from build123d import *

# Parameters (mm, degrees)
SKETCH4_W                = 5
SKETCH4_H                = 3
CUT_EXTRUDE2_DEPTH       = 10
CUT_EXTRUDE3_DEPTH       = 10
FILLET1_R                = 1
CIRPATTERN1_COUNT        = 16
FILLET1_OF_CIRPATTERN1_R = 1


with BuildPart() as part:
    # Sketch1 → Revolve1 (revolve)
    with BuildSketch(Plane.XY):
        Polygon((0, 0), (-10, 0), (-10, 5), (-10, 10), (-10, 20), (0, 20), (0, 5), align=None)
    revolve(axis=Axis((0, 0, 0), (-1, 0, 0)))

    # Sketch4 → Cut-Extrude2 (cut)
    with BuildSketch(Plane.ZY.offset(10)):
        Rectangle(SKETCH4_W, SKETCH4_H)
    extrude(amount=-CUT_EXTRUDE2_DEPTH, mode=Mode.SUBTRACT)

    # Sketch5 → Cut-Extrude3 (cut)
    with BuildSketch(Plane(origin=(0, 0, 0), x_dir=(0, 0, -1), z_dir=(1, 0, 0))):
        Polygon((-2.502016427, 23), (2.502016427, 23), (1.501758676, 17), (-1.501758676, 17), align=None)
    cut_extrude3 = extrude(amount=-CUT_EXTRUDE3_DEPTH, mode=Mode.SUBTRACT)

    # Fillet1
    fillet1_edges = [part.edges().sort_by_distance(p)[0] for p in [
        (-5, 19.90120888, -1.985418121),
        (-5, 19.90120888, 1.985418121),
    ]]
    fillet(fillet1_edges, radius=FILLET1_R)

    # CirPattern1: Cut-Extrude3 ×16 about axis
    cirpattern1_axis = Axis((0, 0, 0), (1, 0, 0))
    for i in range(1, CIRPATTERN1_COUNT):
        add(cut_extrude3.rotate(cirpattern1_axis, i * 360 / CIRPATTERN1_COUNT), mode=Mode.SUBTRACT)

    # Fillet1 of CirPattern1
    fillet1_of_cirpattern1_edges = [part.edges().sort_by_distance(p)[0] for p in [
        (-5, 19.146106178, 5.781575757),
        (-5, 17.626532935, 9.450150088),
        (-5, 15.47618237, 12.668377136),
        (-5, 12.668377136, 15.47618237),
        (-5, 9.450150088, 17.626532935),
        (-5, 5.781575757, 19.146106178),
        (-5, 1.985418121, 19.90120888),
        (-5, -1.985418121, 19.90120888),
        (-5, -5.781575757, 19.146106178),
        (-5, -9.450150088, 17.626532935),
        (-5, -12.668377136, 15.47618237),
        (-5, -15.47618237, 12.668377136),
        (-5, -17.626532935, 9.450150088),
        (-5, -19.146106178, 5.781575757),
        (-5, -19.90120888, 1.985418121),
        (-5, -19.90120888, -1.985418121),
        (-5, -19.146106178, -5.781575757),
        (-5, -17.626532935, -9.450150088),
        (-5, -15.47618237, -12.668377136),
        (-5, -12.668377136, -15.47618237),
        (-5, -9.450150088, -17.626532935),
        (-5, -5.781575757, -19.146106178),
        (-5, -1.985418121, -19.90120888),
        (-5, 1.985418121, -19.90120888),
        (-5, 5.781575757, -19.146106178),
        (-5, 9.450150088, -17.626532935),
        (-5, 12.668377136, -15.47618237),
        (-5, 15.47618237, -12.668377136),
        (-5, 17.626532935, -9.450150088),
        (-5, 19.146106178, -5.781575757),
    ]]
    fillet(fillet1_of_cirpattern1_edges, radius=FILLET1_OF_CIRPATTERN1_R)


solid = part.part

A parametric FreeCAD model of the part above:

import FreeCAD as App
import Part
import Sketcher
Q = App.Units.Quantity


def edges_at(feature, points):
    """Names of the edges that pass closest to the given points."""
    edges = feature.Shape.Edges
    near = lambda p: min(range(len(edges)), key=lambda i: edges[i].distToShape(Part.Vertex(*p))[0])
    return sorted({f"Edge{near(p) + 1}" for p in points})

doc = App.newDocument("Part")
body = doc.addObject("PartDesign::Body", "Body")

# Sketch on XY plane
sketch1 = body.newObject("Sketcher::SketchObject", "Sketch")
sketch1.AttachmentSupport = (doc.getObject("XY_Plane"), [""])
sketch1.MapMode = "FlatFace"
sketch1.addGeometry([
    Part.LineSegment(App.Vector(-10, 0, 0), App.Vector(0, 0, 0)),
    Part.LineSegment(App.Vector(0, 0, 0), App.Vector(0, 20, 0)),
    Part.LineSegment(App.Vector(0, 20, 0), App.Vector(-10, 20, 0)),
    Part.LineSegment(App.Vector(-10, 20, 0), App.Vector(-10, 0, 0)),
], False)
sketch1.addConstraint([
    Sketcher.Constraint("Coincident", 0, 2, 1, 1),
    Sketcher.Constraint("Coincident", 1, 2, 2, 1),
    Sketcher.Constraint("Coincident", 2, 2, 3, 1),
    Sketcher.Constraint("Coincident", 3, 2, 0, 1),
    Sketcher.Constraint("Horizontal", 0),
    Sketcher.Constraint("Vertical", 1),
    Sketcher.Constraint("Horizontal", 2),
    Sketcher.Constraint("Vertical", 3),
    Sketcher.Constraint("Coincident", 0, 2, -1, 1),
    Sketcher.Constraint("DistanceX", 0, 1, 0, 2, Q("10 mm")),
    Sketcher.Constraint("DistanceY", 1, 1, 1, 2, Q("20 mm")),
])
revolution = body.newObject("PartDesign::Revolution", "Revolution")
revolution.Profile = sketch1
revolution.ReferenceAxis = (sketch1, ["H_Axis"])
revolution.Angle = 360

# Sketch on YZ plane
sketch2 = body.newObject("Sketcher::SketchObject", "Sketch001")
sketch2.AttachmentSupport = (doc.getObject("YZ_Plane"), [""])
sketch2.MapMode = "FlatFace"
sketch2.AttachmentOffset = App.Placement(App.Vector(0, 0, -10), App.Rotation())
sketch2.addGeometry([
    Part.LineSegment(App.Vector(1.5, -2.5, 0), App.Vector(-1.5, -2.5, 0)),
    Part.LineSegment(App.Vector(-1.5, -2.5, 0), App.Vector(-1.5, 2.5, 0)),
    Part.LineSegment(App.Vector(-1.5, 2.5, 0), App.Vector(1.5, 2.5, 0)),
    Part.LineSegment(App.Vector(1.5, 2.5, 0), App.Vector(1.5, -2.5, 0)),
], False)
sketch2.addConstraint([
    Sketcher.Constraint("Coincident", 0, 2, 1, 1),
    Sketcher.Constraint("Coincident", 1, 2, 2, 1),
    Sketcher.Constraint("Coincident", 2, 2, 3, 1),
    Sketcher.Constraint("Coincident", 3, 2, 0, 1),
    Sketcher.Constraint("Horizontal", 0),
    Sketcher.Constraint("Vertical", 1),
    Sketcher.Constraint("Horizontal", 2),
    Sketcher.Constraint("Vertical", 3),
    Sketcher.Constraint("Symmetric", 0, 2, 2, 2, -1, 1),
    Sketcher.Constraint("DistanceX", 0, 2, 0, 1, Q("3 mm")),
    Sketcher.Constraint("DistanceY", 1, 1, 1, 2, Q("5 mm")),
])
pocket1 = body.newObject("PartDesign::Pocket", "Pocket")
pocket1.Profile = sketch2
pocket1.Length = 10
pocket1.Reversed = True

# Sketch on YZ plane
sketch3 = body.newObject("Sketcher::SketchObject", "Sketch002")
sketch3.AttachmentSupport = (doc.getObject("YZ_Plane"), [""])
sketch3.MapMode = "FlatFace"
sketch3.addGeometry([
    Part.LineSegment(App.Vector(23, -2.5, 0), App.Vector(23, 2.5, 0)),
    Part.LineSegment(App.Vector(23, 2.5, 0), App.Vector(17, 1.5, 0)),
    Part.LineSegment(App.Vector(17, 1.5, 0), App.Vector(17, -1.5, 0)),
    Part.LineSegment(App.Vector(17, -1.5, 0), App.Vector(23, -2.5, 0)),
], False)
sketch3.addConstraint([
    Sketcher.Constraint("Coincident", 0, 2, 1, 1),
    Sketcher.Constraint("Coincident", 1, 2, 2, 1),
    Sketcher.Constraint("Coincident", 2, 2, 3, 1),
    Sketcher.Constraint("Coincident", 3, 2, 0, 1),
    Sketcher.Constraint("Vertical", 0),
    Sketcher.Constraint("Vertical", 2),
    Sketcher.Constraint("Equal", 1, 3),
    Sketcher.Constraint("DistanceX", -1, 1, 0, 2, Q("23 mm")),
    Sketcher.Constraint("DistanceX", -1, 1, 1, 2, Q("17 mm")),
    Sketcher.Constraint("DistanceY", 0, 1, 0, 2, Q("5.004033 mm")),
    Sketcher.Constraint("DistanceY", 2, 2, 2, 1, Q("3.003517 mm")),
    Sketcher.Constraint("DistanceY", -1, 1, 1, 2, Q("1.501759 mm")),
])
pocket2 = body.newObject("PartDesign::Pocket", "Pocket001")
pocket2.Profile = sketch3
pocket2.Length = 10
doc.recompute()

fillet = body.newObject("PartDesign::Fillet", "Fillet")
fillet.Base = (pocket2, edges_at(pocket2, [(-5, 19.901, -1.985), (-5, 19.901, 1.985)]))
fillet.Radius = 1
doc.recompute()

polarpattern = body.newObject("PartDesign::PolarPattern", "PolarPattern")
polarpattern.Originals = [pocket2]
polarpattern.Axis = (doc.getObject("X_Axis"), [""])
polarpattern.Angle = 360
polarpattern.Occurrences = 16
body.Tip = polarpattern
doc.recompute()

fillet2 = body.newObject("PartDesign::Fillet", "Fillet001")
fillet2.Base = (polarpattern, edges_at(polarpattern, [
    (-5, 19.146, 5.782),
    (-5, 17.627, 9.45),
    (-5, 15.476, 12.668),
    (-5, 12.668, 15.476),
    (-5, 9.45, 17.627),
    (-5, 5.782, 19.146),
    (-5, 1.985, 19.901),
    (-5, -1.985, 19.901),
    (-5, -5.782, 19.146),
    (-5, -9.45, 17.627),
    (-5, -12.668, 15.476),
    (-5, -15.476, 12.668),
    (-5, -17.627, 9.45),
    (-5, -19.146, 5.782),
    (-5, -19.901, 1.985),
    (-5, -19.901, -1.985),
    (-5, -19.146, -5.782),
    (-5, -17.627, -9.45),
    (-5, -15.476, -12.668),
    (-5, -12.668, -15.476),
    (-5, -9.45, -17.627),
    (-5, -5.782, -19.146),
    (-5, -1.985, -19.901),
    (-5, 1.985, -19.901),
    (-5, 5.782, -19.146),
    (-5, 9.45, -17.627),
    (-5, 12.668, -15.476),
    (-5, 15.476, -12.668),
    (-5, 17.627, -9.45),
    (-5, 19.146, -5.782),
]))
fillet2.Radius = 1

doc.recompute()
